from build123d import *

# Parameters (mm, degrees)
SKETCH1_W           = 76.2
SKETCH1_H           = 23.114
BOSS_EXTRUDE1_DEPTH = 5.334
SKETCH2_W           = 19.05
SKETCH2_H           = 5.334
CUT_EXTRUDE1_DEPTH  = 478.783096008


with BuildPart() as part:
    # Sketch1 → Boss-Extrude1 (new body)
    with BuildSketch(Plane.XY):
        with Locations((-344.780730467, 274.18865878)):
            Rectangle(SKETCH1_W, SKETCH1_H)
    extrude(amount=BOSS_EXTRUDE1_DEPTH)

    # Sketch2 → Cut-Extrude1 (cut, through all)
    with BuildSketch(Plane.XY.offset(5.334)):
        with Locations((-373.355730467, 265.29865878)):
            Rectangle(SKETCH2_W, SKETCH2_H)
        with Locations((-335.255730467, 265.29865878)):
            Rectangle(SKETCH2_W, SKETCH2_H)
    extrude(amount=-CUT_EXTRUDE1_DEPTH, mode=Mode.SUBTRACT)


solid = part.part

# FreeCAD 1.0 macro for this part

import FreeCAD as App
import Part
import Sketcher
from FreeCAD import Vector
Q = App.Units.Quantity


def add_polygon(sketch, points):
    """Adds a closed chain of lines whose ends are joined by coincident constraints."""
    first, n = sketch.GeometryCount, len(points)
    for a, b in zip(points, points[1:] + points[:1]):
        sketch.addGeometry(Part.LineSegment(App.Vector(*a, 0), App.Vector(*b, 0)), False)
    for i in range(n):
        sketch.addConstraint(Sketcher.Constraint("Coincident", first + i, 2, first + (i + 1) % n, 1))

doc = App.newDocument("Part")
params = doc.addObject("Spreadsheet::Sheet", "Params")
for row, (alias, value) in enumerate([
    ("sketch1_width", "3 in"),
    ("sketch1_height", "0.91 in"),
    ("pad1_length", "0.21 in"),
    ("sketch2_width", "0.75 in"),
    ("sketch2_height", "0.21 in"),
], start=1):
    params.set(f"A{row}", alias)
    params.set(f"B{row}", "=" + value)
    params.setAlias(f"B{row}", alias)

body = doc.addObject("PartDesign::Body", "Body")

# Sketch on XY plane
sketch1 = body.newObject("Sketcher::SketchObject", "Sketch")
sketch1.AttachmentSupport = (doc.getObject("XY_Plane"), [""])
sketch1.MapMode = "FlatFace"
add_polygon(sketch1, [(-383, 286), (-383, 263), (-307, 263), (-307, 286)])  # lines 0-3
sketch1.addConstraint([
    Sketcher.Constraint("Vertical", 0),
    Sketcher.Constraint("Horizontal", 1),
    Sketcher.Constraint("Vertical", 2),
    Sketcher.Constraint("Horizontal", 3),
    Sketcher.Constraint("DistanceX", 1, 1, 1, 2, Q("3 in")),
    Sketcher.Constraint("DistanceY", 0, 2, 0, 1, Q("0.91 in")),
    Sketcher.Constraint("DistanceX", 0, 2, -1, 1, 382.88073),
    Sketcher.Constraint("DistanceY", -1, 1, 0, 2, 262.631659),
])
sketch1.setExpression("Constraints[8]", "Params.sketch1_width")
sketch1.setExpression("Constraints[9]", "Params.sketch1_height")
pad1 = body.newObject("PartDesign::Pad", "Pad")
pad1.Profile = sketch1
pad1.setExpression("Length", "Params.pad1_length")

# Sketch on XY plane
sketch2 = body.newObject("Sketcher::SketchObject", "Sketch001")
sketch2.AttachmentSupport = (doc.getObject("XY_Plane"), [""])
sketch2.MapMode = "FlatFace"
sketch2.AttachmentOffset = App.Placement(Vector(0, 0, 0.21 * 25.4), App.Rotation())
add_polygon(sketch2, [(-383, 268), (-383, 263), (-364, 263), (-364, 268)])  # lines 0-3
add_polygon(sketch2, [(-345, 268), (-345, 263), (-326, 263), (-326, 268)])  # lines 4-7
sketch2.addConstraint([
    Sketcher.Constraint("Vertical", 0),
    Sketcher.Constraint("Horizontal", 1),
    Sketcher.Constraint("Vertical", 2),
    Sketcher.Constraint("Horizontal", 3),
    Sketcher.Constraint("Vertical", 4),
    Sketcher.Constraint("Horizontal", 5),
    Sketcher.Constraint("Vertical", 6),
    Sketcher.Constraint("Horizontal", 7),
    Sketcher.Constraint("Horizontal", 1, 2, 4, 2),
    Sketcher.Constraint("Horizontal", 3, 2, 6, 2),
    Sketcher.Constraint("Equal", 3, 5),
    Sketcher.Constraint("DistanceX", 1, 1, 1, 2, Q("0.75 in")),
    Sketcher.Constraint("DistanceY", 0, 2, 0, 1, Q("0.21 in")),
    Sketcher.Constraint("DistanceX", 0, 2, 4, 2, Q("1.5 in")),
    Sketcher.Constraint("DistanceX", 0, 2, -1, 1, 382.88073),
    Sketcher.Constraint("DistanceY", -1, 1, 0, 2, 262.631659),
])
sketch2.setExpression("Constraints[19]", "Params.sketch2_width")
sketch2.setExpression("Constraints[20]", "Params.sketch2_height")
pocket1 = body.newObject("PartDesign::Pocket", "Pocket")
pocket1.Profile = sketch2
pocket1.Type = "ThroughAll"

doc.recompute()
